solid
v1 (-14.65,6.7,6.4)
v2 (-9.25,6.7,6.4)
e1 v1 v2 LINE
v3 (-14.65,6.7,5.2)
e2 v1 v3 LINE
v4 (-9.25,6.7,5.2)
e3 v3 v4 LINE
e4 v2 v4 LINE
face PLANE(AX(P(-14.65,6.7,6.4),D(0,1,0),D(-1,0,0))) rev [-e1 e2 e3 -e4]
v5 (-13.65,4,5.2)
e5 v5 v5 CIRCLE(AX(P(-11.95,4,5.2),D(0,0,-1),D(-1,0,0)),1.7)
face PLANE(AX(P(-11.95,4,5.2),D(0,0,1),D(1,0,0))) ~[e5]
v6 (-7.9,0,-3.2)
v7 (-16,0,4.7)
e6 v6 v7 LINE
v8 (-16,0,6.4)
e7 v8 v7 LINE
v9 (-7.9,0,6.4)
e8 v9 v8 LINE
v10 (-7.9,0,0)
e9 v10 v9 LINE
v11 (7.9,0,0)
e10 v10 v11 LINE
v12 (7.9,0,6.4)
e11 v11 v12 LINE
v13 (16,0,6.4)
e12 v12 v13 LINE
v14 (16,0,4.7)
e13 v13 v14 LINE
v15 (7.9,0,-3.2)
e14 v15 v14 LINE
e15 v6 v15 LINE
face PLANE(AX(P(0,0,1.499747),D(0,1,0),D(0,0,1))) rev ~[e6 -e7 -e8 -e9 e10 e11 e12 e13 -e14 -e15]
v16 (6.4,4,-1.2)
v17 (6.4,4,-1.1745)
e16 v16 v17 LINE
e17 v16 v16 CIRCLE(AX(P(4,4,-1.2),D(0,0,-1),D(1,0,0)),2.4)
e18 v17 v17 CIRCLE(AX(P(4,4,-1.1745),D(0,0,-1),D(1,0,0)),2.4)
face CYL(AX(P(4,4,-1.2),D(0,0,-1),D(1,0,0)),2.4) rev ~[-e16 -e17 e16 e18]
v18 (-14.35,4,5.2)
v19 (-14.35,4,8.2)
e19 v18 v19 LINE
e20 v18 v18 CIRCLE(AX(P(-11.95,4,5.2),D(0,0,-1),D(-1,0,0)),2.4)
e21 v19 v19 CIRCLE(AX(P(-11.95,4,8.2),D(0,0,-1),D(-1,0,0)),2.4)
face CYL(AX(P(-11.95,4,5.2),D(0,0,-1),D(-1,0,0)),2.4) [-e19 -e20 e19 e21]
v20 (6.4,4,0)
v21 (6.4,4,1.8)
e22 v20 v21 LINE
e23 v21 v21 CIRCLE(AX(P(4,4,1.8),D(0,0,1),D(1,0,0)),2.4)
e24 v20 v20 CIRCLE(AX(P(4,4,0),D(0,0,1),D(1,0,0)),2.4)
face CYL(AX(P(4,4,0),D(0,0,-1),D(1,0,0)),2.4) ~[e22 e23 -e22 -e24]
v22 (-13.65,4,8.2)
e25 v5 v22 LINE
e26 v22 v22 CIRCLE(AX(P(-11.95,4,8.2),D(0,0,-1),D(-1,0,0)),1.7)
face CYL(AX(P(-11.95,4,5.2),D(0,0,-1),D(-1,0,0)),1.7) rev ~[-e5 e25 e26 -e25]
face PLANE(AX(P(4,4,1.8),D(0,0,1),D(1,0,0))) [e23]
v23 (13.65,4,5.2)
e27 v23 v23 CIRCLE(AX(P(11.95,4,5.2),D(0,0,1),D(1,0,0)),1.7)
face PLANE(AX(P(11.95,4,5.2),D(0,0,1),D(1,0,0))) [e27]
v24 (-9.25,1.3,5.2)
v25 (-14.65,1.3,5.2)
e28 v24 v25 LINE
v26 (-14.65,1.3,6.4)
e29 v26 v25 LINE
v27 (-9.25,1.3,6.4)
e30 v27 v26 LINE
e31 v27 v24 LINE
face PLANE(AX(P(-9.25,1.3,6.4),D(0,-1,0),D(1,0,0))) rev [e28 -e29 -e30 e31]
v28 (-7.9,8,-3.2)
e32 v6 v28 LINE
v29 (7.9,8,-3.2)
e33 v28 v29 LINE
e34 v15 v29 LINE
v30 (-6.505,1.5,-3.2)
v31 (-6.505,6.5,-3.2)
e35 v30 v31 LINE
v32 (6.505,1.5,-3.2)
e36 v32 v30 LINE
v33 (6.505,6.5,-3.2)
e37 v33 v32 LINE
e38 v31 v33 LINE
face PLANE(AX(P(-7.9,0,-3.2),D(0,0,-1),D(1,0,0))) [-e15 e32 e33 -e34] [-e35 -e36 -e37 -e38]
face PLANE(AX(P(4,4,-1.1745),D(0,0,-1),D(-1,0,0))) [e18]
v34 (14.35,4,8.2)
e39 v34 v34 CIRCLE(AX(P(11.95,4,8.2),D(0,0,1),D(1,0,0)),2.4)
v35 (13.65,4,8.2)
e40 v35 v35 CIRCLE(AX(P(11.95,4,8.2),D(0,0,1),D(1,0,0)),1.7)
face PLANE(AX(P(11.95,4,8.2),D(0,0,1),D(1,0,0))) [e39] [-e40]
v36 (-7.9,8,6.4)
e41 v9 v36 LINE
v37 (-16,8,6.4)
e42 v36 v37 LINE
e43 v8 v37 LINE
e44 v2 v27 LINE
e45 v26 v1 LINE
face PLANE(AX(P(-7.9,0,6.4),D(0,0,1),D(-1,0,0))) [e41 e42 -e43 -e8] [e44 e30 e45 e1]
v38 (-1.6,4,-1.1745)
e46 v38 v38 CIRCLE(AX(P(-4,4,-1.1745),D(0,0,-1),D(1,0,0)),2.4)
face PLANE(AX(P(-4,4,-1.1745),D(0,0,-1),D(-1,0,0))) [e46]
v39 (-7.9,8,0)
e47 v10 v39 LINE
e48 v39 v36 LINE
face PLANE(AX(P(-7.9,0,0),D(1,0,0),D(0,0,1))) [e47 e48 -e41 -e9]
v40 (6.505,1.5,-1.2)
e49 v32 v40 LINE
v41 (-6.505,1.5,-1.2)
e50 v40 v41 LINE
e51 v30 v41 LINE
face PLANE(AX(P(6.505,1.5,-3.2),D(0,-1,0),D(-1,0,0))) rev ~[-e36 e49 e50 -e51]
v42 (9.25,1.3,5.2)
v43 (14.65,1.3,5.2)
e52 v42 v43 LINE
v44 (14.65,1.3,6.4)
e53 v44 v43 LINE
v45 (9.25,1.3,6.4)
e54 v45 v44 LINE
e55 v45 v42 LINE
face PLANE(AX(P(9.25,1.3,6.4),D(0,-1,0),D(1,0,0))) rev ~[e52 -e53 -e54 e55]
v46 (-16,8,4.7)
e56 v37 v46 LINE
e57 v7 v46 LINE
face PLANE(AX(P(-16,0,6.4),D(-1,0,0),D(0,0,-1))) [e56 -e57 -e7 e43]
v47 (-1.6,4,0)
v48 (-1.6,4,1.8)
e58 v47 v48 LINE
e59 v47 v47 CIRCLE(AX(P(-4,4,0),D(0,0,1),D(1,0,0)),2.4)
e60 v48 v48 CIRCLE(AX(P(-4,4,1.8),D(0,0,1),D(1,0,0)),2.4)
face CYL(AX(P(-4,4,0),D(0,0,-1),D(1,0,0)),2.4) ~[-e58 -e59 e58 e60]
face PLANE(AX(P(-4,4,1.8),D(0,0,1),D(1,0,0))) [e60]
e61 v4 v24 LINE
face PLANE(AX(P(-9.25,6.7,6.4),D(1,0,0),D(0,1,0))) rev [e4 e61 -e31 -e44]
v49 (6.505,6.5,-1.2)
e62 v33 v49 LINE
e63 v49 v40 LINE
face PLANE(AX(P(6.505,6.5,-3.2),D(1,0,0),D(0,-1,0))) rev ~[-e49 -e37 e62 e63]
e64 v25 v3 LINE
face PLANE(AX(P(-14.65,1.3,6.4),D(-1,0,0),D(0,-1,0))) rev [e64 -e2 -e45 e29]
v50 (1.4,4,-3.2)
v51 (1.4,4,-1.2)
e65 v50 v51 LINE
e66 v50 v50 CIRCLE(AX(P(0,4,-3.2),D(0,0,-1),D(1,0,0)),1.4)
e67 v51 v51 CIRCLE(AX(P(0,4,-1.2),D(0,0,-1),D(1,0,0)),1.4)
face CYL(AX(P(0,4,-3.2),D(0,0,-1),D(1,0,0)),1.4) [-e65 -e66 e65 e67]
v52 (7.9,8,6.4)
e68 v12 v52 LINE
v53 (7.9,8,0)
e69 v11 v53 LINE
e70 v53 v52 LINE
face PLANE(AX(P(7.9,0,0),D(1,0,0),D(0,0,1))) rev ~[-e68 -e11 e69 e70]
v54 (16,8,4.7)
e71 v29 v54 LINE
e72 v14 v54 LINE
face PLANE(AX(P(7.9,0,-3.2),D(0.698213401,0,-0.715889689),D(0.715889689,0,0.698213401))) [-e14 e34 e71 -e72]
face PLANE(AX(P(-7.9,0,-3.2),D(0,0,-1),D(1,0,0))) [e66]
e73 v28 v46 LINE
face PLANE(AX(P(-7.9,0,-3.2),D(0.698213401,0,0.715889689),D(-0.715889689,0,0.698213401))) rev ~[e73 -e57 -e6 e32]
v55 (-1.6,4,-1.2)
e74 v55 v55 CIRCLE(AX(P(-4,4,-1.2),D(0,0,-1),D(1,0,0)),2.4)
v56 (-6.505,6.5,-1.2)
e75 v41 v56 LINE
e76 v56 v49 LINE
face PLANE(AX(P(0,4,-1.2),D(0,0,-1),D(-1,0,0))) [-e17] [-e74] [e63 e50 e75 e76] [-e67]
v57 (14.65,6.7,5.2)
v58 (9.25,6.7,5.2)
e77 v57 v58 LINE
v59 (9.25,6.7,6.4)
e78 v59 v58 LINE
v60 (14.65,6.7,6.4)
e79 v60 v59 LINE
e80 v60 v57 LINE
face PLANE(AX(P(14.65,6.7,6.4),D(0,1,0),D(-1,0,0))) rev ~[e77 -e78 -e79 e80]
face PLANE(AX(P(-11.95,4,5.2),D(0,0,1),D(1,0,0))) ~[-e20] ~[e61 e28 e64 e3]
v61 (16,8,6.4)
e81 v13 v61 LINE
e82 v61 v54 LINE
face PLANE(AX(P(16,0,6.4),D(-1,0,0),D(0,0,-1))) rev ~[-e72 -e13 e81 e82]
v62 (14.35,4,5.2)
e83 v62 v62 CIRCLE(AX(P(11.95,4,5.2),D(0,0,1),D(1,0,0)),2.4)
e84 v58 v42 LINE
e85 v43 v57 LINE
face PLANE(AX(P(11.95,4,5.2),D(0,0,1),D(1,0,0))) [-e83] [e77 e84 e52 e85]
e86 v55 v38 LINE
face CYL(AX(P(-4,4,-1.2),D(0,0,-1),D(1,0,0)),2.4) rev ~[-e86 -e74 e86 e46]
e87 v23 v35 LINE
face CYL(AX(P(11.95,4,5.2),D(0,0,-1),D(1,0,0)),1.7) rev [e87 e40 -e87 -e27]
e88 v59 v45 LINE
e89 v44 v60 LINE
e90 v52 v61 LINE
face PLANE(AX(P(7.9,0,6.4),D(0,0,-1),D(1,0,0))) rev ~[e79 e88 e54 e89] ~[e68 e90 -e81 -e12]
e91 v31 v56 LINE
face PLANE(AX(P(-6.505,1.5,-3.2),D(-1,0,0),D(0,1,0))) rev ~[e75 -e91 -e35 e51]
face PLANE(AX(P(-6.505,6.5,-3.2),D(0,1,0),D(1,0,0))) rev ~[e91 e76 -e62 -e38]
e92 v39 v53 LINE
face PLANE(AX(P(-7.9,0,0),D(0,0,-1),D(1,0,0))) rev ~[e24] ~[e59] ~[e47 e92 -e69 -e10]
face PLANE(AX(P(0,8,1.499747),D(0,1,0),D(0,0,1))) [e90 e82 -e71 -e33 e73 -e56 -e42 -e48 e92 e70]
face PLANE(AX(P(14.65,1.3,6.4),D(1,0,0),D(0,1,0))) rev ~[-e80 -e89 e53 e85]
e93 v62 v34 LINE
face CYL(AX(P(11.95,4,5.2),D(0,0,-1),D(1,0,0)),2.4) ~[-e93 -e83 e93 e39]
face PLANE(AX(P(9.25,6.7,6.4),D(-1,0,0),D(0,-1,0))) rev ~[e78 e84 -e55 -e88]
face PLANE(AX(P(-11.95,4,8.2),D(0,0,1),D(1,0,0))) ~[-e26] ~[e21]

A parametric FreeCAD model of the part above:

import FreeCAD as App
import Part
import Sketcher
Q = App.Units.Quantity

doc = App.newDocument("Part")
params = doc.addObject("Spreadsheet::Sheet", "Params")
for row, (alias, value) in enumerate([
    ("sketch1_width", "15.8 mm"),
    ("sketch1_width2", "8.1 mm"),
    ("sketch1_height", "6.4 mm"),
    ("sketch1_height2", "1.7 mm"),
    ("pad1_length", "8 mm"),
    ("sketch2_width", "5.4 mm"),
    ("pocket1_length", "1.2 mm"),
    ("sketch3_diameter", "4.8 mm"),
    ("pad2_length", "1.8 mm"),
    ("sketch4_diameter", "4.8 mm"),
    ("sketch4_diameter2", "3.4 mm"),
    ("pad3_length", "3 mm"),
    ("sketch5_diameter", "2.8 mm"),
    ("sketch5_height", "5 mm"),
    ("sketch5_width", "13.01 mm"),
    ("pocket2_length", "2 mm"),
    ("sketch6_diameter", "4.8 mm"),
    ("pocket3_length", "0.0255 mm"),
], start=1):
    params.set(f"A{row}", alias)
    params.set(f"B{row}", "=" + value)
    params.setAlias(f"B{row}", alias)

body = doc.addObject("PartDesign::Body", "Body")

# Sketch on XZ plane
sketch1 = body.newObject("Sketcher::SketchObject", "Sketch")
sketch1.AttachmentSupport = (doc.getObject("XZ_Plane"), [""])
sketch1.MapMode = "FlatFace"
sketch1.addGeometry(Part.LineSegment(App.Vector(7.9, 0, 0), App.Vector(-7.9, 0, 0)), False)
sketch1.addGeometry(Part.LineSegment(App.Vector(-7.9, 0, 0), App.Vector(-7.9, 6.4, 0)), False)
sketch1.addGeometry(Part.LineSegment(App.Vector(-7.9, 6.4, 0), App.Vector(-16, 6.4, 0)), False)
sketch1.addGeometry(Part.LineSegment(App.Vector(-16, 6.4, 0), App.Vector(-16, 4.7, 0)), False)
sketch1.addGeometry(Part.LineSegment(App.Vector(-16, 4.7, 0), App.Vector(-7.9, -3.2, 0)), False)
sketch1.addGeometry(Part.LineSegment(App.Vector(-7.9, -3.2, 0), App.Vector(7.9, -3.2, 0)), False)
sketch1.addGeometry(Part.LineSegment(App.Vector(7.9, -3.2, 0), App.Vector(16, 4.7, 0)), False)
sketch1.addGeometry(Part.LineSegment(App.Vector(16, 4.7, 0), App.Vector(16, 6.4, 0)), False)
sketch1.addGeometry(Part.LineSegment(App.Vector(16, 6.4, 0), App.Vector(7.9, 6.4, 0)), False)
sketch1.addGeometry(Part.LineSegment(App.Vector(7.9, 6.4, 0), App.Vector(7.9, 0, 0)), False)
sketch1.addConstraint(Sketcher.Constraint("Coincident", 0, 2, 1, 1))
sketch1.addConstraint(Sketcher.Constraint("Coincident", 1, 2, 2, 1))
sketch1.addConstraint(Sketcher.Constraint("Coincident", 2, 2, 3, 1))
sketch1.addConstraint(Sketcher.Constraint("Coincident", 3, 2, 4, 1))
sketch1.addConstraint(Sketcher.Constraint("Coincident", 4, 2, 5, 1))
sketch1.addConstraint(Sketcher.Constraint("Coincident", 5, 2, 6, 1))
sketch1.addConstraint(Sketcher.Constraint("Coincident", 6, 2, 7, 1))
sketch1.addConstraint(Sketcher.Constraint("Coincident", 7, 2, 8, 1))
sketch1.addConstraint(Sketcher.Constraint("Coincident", 8, 2, 9, 1))
sketch1.addConstraint(Sketcher.Constraint("Coincident", 9, 2, 0, 1))
sketch1.addConstraint(Sketcher.Constraint("Horizontal", 0))
sketch1.addConstraint(Sketcher.Constraint("Vertical", 1))
sketch1.addConstraint(Sketcher.Constraint("Horizontal", 2))
sketch1.addConstraint(Sketcher.Constraint("Vertical", 3))
sketch1.addConstraint(Sketcher.Constraint("Horizontal", 5))
sketch1.addConstraint(Sketcher.Constraint("Vertical", 7))
sketch1.addConstraint(Sketcher.Constraint("Horizontal", 8))
sketch1.addConstraint(Sketcher.Constraint("Vertical", 9))
sketch1.addConstraint(Sketcher.Constraint("Symmetric", 0, 2, 9, 2, -1, 1))
sketch1.addConstraint(Sketcher.Constraint("Symmetric", 3, 2, 6, 2, -2))
sketch1.addConstraint(Sketcher.Constraint("Horizontal", 2, 2, 7, 2))
sketch1.addConstraint(Sketcher.Constraint("Vertical", 1, 2, 4, 2))
sketch1.addConstraint(Sketcher.Constraint("Vertical", 5, 2, 8, 2))
sketch1.addConstraint(Sketcher.Constraint("DistanceX", 0, 2, 0, 1, Q("15.8 mm")))
sketch1.addConstraint(Sketcher.Constraint("DistanceX", 2, 2, 2, 1, Q("8.1 mm")))
sketch1.addConstraint(Sketcher.Constraint("DistanceY", 1, 1, 1, 2, Q("6.4 mm")))
sketch1.addConstraint(Sketcher.Constraint("DistanceY", 3, 2, 3, 1, Q("1.7 mm")))
sketch1.addConstraint(Sketcher.Constraint("DistanceY", 4, 2, -1, 1, Q("3.2 mm")))
sketch1.setExpression("Constraints[23]", "Params.sketch1_width")
sketch1.setExpression("Constraints[24]", "Params.sketch1_width2")
sketch1.setExpression("Constraints[25]", "Params.sketch1_height")
sketch1.setExpression("Constraints[26]", "Params.sketch1_height2")
pad1 = body.newObject("PartDesign::Pad", "Pad")
pad1.Profile = sketch1
pad1.setExpression("Length", "Params.pad1_length")
pad1.Reversed = True

# Sketch on XY plane
sketch2 = body.newObject("Sketcher::SketchObject", "Sketch001")
sketch2.AttachmentSupport = (doc.getObject("XY_Plane"), [""])
sketch2.MapMode = "FlatFace"
sketch2.AttachmentOffset = App.Placement(App.Vector(0, 0, 6.4), App.Rotation())
sketch2.addGeometry(Part.LineSegment(App.Vector(9, 7, 0), App.Vector(9, 1, 0)), False)
sketch2.addGeometry(Part.LineSegment(App.Vector(9, 1, 0), App.Vector(15, 1, 0)), False)
sketch2.addGeometry(Part.LineSegment(App.Vector(15, 1, 0), App.Vector(15, 7, 0)), False)
sketch2.addGeometry(Part.LineSegment(App.Vector(15, 7, 0), App.Vector(9, 7, 0)), False)
sketch2.addConstraint(Sketcher.Constraint("Coincident", 0, 2, 1, 1))
sketch2.addConstraint(Sketcher.Constraint("Coincident", 1, 2, 2, 1))
sketch2.addConstraint(Sketcher.Constraint("Coincident", 2, 2, 3, 1))
sketch2.addConstraint(Sketcher.Constraint("Coincident", 3, 2, 0, 1))
sketch2.addConstraint(Sketcher.Constraint("Vertical", 0))
sketch2.addConstraint(Sketcher.Constraint("Horizontal", 1))
sketch2.addConstraint(Sketcher.Constraint("Vertical", 2))
sketch2.addConstraint(Sketcher.Constraint("Horizontal", 3))
sketch2.addConstraint(Sketcher.Constraint("Equal", 3, 0))
sketch2.addConstraint(Sketcher.Constraint("DistanceX", 1, 1, 1, 2, Q("5.4 mm")))
sketch2.addConstraint(Sketcher.Constraint("DistanceY", -1, 1, 0, 2, Q("1.3 mm")))
sketch2.addConstraint(Sketcher.Constraint("DistanceX", -1, 1, 0, 2, Q("9.25 mm")))
sketch2.setExpression("Constraints[9]", "Params.sketch2_width")
pocket1 = body.newObject("PartDesign::Pocket", "Pocket")
pocket1.Profile = sketch2
pocket1.setExpression("Length", "Params.pocket1_length")

# Sketch on XY plane
sketch3 = body.newObject("Sketcher::SketchObject", "Sketch002")
sketch3.AttachmentSupport = (doc.getObject("XY_Plane"), [""])
sketch3.MapMode = "FlatFace"
sketch3.addGeometry(Part.Circle(App.Vector(-4, 4, 0), App.Vector(0, 0, 1), 2.4), False)
sketch3.addGeometry(Part.Circle(App.Vector(4, 4, 0), App.Vector(0, 0, 1), 2.4), False)
sketch3.addConstraint(Sketcher.Constraint("Equal", 0, 1))
sketch3.addConstraint(Sketcher.Constraint("Symmetric", 0, 3, 1, 3, -2))
sketch3.addConstraint(Sketcher.Constraint("Diameter", 0, Q("4.8 mm")))
sketch3.addConstraint(Sketcher.Constraint("DistanceX", 0, 3, -1, 1, Q("4 mm")))
sketch3.addConstraint(Sketcher.Constraint("DistanceY", -1, 1, 0, 3, Q("4 mm")))
sketch3.setExpression("Constraints[2]", "Params.sketch3_diameter")
pad2 = body.newObject("PartDesign::Pad", "Pad001")
pad2.Profile = sketch3
pad2.setExpression("Length", "Params.pad2_length")

# Sketch on XY plane
sketch4 = body.newObject("Sketcher::SketchObject", "Sketch003")
sketch4.AttachmentSupport = (doc.getObject("XY_Plane"), [""])
sketch4.MapMode = "FlatFace"
sketch4.AttachmentOffset = App.Placement(App.Vector(0, 0, 5.2), App.Rotation())
sketch4.addGeometry(Part.Circle(App.Vector(11.9, 4, 0), App.Vector(0, 0, 1), 2.4), False)
sketch4.addGeometry(Part.Circle(App.Vector(11.9, 4, 0), App.Vector(0, 0, 1), 1.7), False)
sketch4.addConstraint(Sketcher.Constraint("Coincident", 1, 3, 0, 3))
sketch4.addConstraint(Sketcher.Constraint("Diameter", 0, Q("4.8 mm")))
sketch4.addConstraint(Sketcher.Constraint("Diameter", 1, Q("3.4 mm")))
sketch4.addConstraint(Sketcher.Constraint("DistanceY", -1, 1, 0, 3, Q("4 mm")))
sketch4.addConstraint(Sketcher.Constraint("DistanceX", -1, 1, 0, 3, Q("11.95 mm")))
sketch4.setExpression("Constraints[1]", "Params.sketch4_diameter")
sketch4.setExpression("Constraints[2]", "Params.sketch4_diameter2")
pad3 = body.newObject("PartDesign::Pad", "Pad002")
pad3.Profile = sketch4
pad3.setExpression("Length", "Params.pad3_length")
doc.recompute()

mirrored = body.newObject("PartDesign::Mirrored", "Mirrored")
mirrored.Originals = [pocket1]
mirrored.MirrorPlane = (doc.getObject("YZ_Plane"), [""])
body.Tip = mirrored
doc.recompute()

mirrored2 = body.newObject("PartDesign::Mirrored", "Mirrored001")
mirrored2.Originals = [pad3]
mirrored2.MirrorPlane = (doc.getObject("YZ_Plane"), [""])
body.Tip = mirrored2

# Sketch on XY plane
sketch5 = body.newObject("Sketcher::SketchObject", "Sketch004")
sketch5.AttachmentSupport = (doc.getObject("XY_Plane"), [""])
sketch5.MapMode = "FlatFace"
sketch5.AttachmentOffset = App.Placement(App.Vector(0, 0, -3.2), App.Rotation())
sketch5.addGeometry(Part.LineSegment(App.Vector(-6.5, 1.5, 0), App.Vector(-6.5, 6.5, 0)), False)
sketch5.addGeometry(Part.LineSegment(App.Vector(-6.5, 6.5, 0), App.Vector(6.5, 6.5, 0)), False)
sketch5.addGeometry(Part.LineSegment(App.Vector(6.5, 6.5, 0), App.Vector(6.5, 1.5, 0)), False)
sketch5.addGeometry(Part.LineSegment(App.Vector(6.5, 1.5, 0), App.Vector(-6.5, 1.5, 0)), False)
sketch5.addGeometry(Part.Circle(App.Vector(0, 4, 0), App.Vector(0, 0, 1), 1.4), False)
sketch5.addConstraint(Sketcher.Constraint("Coincident", 0, 2, 1, 1))
sketch5.addConstraint(Sketcher.Constraint("Coincident", 1, 2, 2, 1))
sketch5.addConstraint(Sketcher.Constraint("Coincident", 2, 2, 3, 1))
sketch5.addConstraint(Sketcher.Constraint("Coincident", 3, 2, 0, 1))
sketch5.addConstraint(Sketcher.Constraint("Vertical", 0))
sketch5.addConstraint(Sketcher.Constraint("Horizontal", 1))
sketch5.addConstraint(Sketcher.Constraint("Vertical", 2))
sketch5.addConstraint(Sketcher.Constraint("Horizontal", 3))
sketch5.addConstraint(Sketcher.Constraint("PointOnObject", 4, 3, -2))
sketch5.addConstraint(Sketcher.Constraint("Diameter", 4, Q("2.8 mm")))
sketch5.addConstraint(Sketcher.Constraint("DistanceY", 0, 1, 0, 2, Q("5 mm")))
sketch5.addConstraint(Sketcher.Constraint("DistanceY", -1, 1, 4, 3, Q("4 mm")))
sketch5.addConstraint(Sketcher.Constraint("DistanceX", 1, 1, 1, 2, Q("13.01 mm")))
sketch5.addConstraint(Sketcher.Constraint("DistanceY", -1, 1, 0, 2, Q("6.5 mm")))
sketch5.addConstraint(Sketcher.Constraint("DistanceX", 0, 2, -1, 1, Q("6.505 mm")))
sketch5.setExpression("Constraints[9]", "Params.sketch5_diameter")
sketch5.setExpression("Constraints[10]", "Params.sketch5_height")
sketch5.setExpression("Constraints[12]", "Params.sketch5_width")
pocket2 = body.newObject("PartDesign::Pocket", "Pocket001")
pocket2.Profile = sketch5
pocket2.setExpression("Length", "Params.pocket2_length")
pocket2.Reversed = True

# Sketch on XY plane
sketch6 = body.newObject("Sketcher::SketchObject", "Sketch005")
sketch6.AttachmentSupport = (doc.getObject("XY_Plane"), [""])
sketch6.MapMode = "FlatFace"
sketch6.AttachmentOffset = App.Placement(App.Vector(0, 0, -1.2), App.Rotation())
sketch6.addGeometry(Part.Circle(App.Vector(-4, 4, 0), App.Vector(0, 0, 1), 2.4), False)
sketch6.addGeometry(Part.Circle(App.Vector(4, 4, 0), App.Vector(0, 0, 1), 2.4), False)
sketch6.addConstraint(Sketcher.Constraint("Equal", 0, 1))
sketch6.addConstraint(Sketcher.Constraint("Symmetric", 0, 3, 1, 3, -2))
sketch6.addConstraint(Sketcher.Constraint("Diameter", 0, Q("4.8 mm")))
sketch6.addConstraint(Sketcher.Constraint("DistanceX", 0, 3, -1, 1, Q("4 mm")))
sketch6.addConstraint(Sketcher.Constraint("DistanceY", -1, 1, 0, 3, Q("4 mm")))
sketch6.setExpression("Constraints[2]", "Params.sketch6_diameter")
pocket3 = body.newObject("PartDesign::Pocket", "Pocket002")
pocket3.Profile = sketch6
pocket3.setExpression("Length", "Params.pocket3_length")
pocket3.Reversed = True

doc.recompute()
